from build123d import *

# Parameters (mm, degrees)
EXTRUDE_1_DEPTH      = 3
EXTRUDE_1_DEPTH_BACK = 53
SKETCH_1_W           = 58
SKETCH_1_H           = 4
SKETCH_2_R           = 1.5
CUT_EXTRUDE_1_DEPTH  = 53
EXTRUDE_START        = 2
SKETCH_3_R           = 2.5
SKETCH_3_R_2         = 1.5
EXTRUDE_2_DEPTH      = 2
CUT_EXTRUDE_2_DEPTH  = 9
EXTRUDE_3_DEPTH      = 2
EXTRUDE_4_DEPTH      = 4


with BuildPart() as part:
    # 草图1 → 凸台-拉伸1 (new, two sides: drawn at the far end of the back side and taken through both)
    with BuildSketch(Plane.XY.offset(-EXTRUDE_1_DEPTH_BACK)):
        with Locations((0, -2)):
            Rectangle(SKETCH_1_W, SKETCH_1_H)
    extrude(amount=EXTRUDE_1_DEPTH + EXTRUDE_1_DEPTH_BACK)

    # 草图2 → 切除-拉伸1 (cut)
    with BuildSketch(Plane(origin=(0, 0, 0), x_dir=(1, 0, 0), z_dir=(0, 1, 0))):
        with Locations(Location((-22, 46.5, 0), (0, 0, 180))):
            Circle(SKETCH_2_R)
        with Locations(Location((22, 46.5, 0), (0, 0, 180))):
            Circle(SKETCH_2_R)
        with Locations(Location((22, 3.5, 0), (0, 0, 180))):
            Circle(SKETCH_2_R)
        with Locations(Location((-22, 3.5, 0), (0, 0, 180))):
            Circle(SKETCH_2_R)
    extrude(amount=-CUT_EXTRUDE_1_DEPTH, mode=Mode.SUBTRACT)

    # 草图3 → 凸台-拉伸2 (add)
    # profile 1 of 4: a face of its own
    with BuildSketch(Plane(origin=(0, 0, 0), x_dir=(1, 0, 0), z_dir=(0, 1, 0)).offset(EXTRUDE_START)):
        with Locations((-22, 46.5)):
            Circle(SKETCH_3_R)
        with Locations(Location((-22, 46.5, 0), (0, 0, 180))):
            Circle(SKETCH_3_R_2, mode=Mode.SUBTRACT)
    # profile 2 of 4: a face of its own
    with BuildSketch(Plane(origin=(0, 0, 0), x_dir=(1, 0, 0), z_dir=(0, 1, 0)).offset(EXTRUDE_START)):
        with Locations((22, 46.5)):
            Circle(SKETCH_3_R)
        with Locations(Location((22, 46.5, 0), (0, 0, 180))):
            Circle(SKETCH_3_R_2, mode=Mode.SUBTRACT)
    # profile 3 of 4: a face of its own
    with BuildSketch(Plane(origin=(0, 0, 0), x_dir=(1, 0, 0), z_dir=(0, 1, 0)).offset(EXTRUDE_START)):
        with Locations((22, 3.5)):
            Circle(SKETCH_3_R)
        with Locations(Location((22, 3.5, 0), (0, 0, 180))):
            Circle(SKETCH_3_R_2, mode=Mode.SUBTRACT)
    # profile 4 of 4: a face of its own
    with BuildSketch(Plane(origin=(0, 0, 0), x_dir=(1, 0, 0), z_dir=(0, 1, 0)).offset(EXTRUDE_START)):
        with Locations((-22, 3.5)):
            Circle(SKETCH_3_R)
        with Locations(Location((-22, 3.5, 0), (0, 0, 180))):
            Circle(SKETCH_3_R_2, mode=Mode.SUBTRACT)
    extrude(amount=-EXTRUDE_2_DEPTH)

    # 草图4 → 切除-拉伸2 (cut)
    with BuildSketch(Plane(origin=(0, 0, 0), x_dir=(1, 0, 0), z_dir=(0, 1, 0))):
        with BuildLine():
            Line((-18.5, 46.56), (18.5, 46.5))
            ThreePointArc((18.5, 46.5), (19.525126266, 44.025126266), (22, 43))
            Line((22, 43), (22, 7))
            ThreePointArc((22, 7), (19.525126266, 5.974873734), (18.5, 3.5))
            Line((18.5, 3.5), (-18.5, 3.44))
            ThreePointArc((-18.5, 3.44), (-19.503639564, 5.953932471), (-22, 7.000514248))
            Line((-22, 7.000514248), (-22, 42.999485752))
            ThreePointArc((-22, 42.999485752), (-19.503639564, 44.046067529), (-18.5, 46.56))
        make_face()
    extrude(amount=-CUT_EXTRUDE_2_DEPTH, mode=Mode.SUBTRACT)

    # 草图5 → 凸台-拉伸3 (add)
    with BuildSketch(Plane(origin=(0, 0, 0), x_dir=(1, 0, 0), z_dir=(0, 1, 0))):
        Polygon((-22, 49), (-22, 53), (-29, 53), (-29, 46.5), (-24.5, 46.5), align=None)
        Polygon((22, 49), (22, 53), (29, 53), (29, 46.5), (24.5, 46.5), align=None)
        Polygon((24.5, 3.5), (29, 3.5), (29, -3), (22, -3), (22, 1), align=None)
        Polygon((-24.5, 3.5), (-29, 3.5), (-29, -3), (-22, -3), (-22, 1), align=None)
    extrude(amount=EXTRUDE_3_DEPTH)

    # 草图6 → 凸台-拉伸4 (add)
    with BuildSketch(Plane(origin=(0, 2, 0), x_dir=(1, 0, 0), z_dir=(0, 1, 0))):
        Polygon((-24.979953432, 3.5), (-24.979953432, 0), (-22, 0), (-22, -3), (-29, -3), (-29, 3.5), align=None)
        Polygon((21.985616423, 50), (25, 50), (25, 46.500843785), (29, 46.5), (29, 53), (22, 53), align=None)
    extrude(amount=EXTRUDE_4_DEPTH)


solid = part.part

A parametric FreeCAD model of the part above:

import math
import FreeCAD as App
import Part
import Sketcher

doc = App.newDocument("Part")
params = doc.addObject("Spreadsheet::Sheet", "Params")
for row, (alias, value) in enumerate([
    ("sketch1_width", "58 mm"),
    ("sketch1_height", "4 mm"),
    ("pad1_length", "3 mm"),
    ("pad1_length2", "53 mm"),
    ("sketch2_diameter", "3 mm"),
    ("pocket1_length", "53 mm"),
    ("sketch3_diameter", "5 mm"),
    ("sketch3_diameter2", "3 mm"),
    ("pad2_length", "2 mm"),
    ("sketch4_radius", "3.5 mm"),
    ("sketch4_height", "36 mm"),
    ("pocket2_length", "9 mm"),
    ("sketch5_width", "7 mm"),
    ("sketch5_height", "4 mm"),
    ("sketch5_width2", "4.5 mm"),
    ("pad3_length", "2 mm"),
    ("sketch6_width", "7 mm"),
    ("sketch6_height", "3 mm"),
    ("sketch6_length", "4 mm"),
    ("sketch6_height2", "3.5 mm"),
    ("pad4_length", "4 mm"),
], start=1):
    params.set(f"A{row}", alias)
    params.set(f"B{row}", "=" + value)
    params.setAlias(f"B{row}", alias)

body = doc.addObject("PartDesign::Body", "Body")

# Sketch on XY plane
sketch1 = doc.addObject("Sketcher::SketchObject", "Sketch")
body.addObject(sketch1)
sketch1.AttachmentSupport = (doc.XY_Plane, [""])
sketch1.MapMode = "FlatFace"
sketch1.addGeometry([
    Part.LineSegment(App.Vector(-29, 0, 0), App.Vector(-29, -4, 0)),
    Part.LineSegment(App.Vector(-29, -4, 0), App.Vector(29, -4, 0)),
    Part.LineSegment(App.Vector(29, -4, 0), App.Vector(29, 0, 0)),
    Part.LineSegment(App.Vector(29, 0, 0), App.Vector(-29, 0, 0)),
], False)
sketch1.addConstraint([
    Sketcher.Constraint("Coincident", 0, 2, 1, 1),
    Sketcher.Constraint("Coincident", 1, 2, 2, 1),
    Sketcher.Constraint("Coincident", 2, 2, 3, 1),
    Sketcher.Constraint("Coincident", 3, 2, 0, 1),
    Sketcher.Constraint("Vertical", 0),
    Sketcher.Constraint("Horizontal", 1),
    Sketcher.Constraint("Vertical", 2),
    Sketcher.Constraint("Horizontal", 3),
    Sketcher.Constraint("Symmetric", 2, 2, 3, 2, -1, 1),
    Sketcher.Constraint("DistanceX", 1, 1, 1, 2, 58.0),
    Sketcher.Constraint("DistanceY", 0, 2, 0, 1, 4.0),
])
sketch1.setExpression("Constraints[9]", "Params.sketch1_width")
sketch1.setExpression("Constraints[10]", "Params.sketch1_height")
pad1 = doc.addObject("PartDesign::Pad", "Pad")
body.addObject(pad1)
pad1.Profile = sketch1
pad1.Type = "TwoLengths"
pad1.setExpression("Length", "Params.pad1_length")
pad1.setExpression("Length2", "Params.pad1_length2")

# Sketch on XZ plane
sketch2 = doc.addObject("Sketcher::SketchObject", "Sketch001")
body.addObject(sketch2)
sketch2.AttachmentSupport = (doc.XZ_Plane, [""])
sketch2.MapMode = "FlatFace"
sketch2.addGeometry([
    Part.Circle(App.Vector(-22, -46.5, 0), App.Vector(0, 0, 1), 1.5),
    Part.Circle(App.Vector(22, -46.5, 0), App.Vector(0, 0, 1), 1.5),
    Part.Circle(App.Vector(22, -3.5, 0), App.Vector(0, 0, 1), 1.5),
    Part.Circle(App.Vector(-22, -3.5, 0), App.Vector(0, 0, 1), 1.5),
], False)
sketch2.addConstraint([
    Sketcher.Constraint("Equal", 0, 1),
    Sketcher.Constraint("Equal", 1, 2),
    Sketcher.Constraint("Equal", 2, 3),
    Sketcher.Constraint("Symmetric", 0, 3, 1, 3, -2),
    Sketcher.Constraint("Symmetric", 2, 3, 3, 3, -2),
    Sketcher.Constraint("Vertical", 1, 3, 2, 3),
    Sketcher.Constraint("Diameter", 0, 3.0),
    Sketcher.Constraint("DistanceX", 0, 3, -1, 1, 22.0),
    Sketcher.Constraint("DistanceY", 1, 3, 2, 3, 43.0),
    Sketcher.Constraint("DistanceY", 0, 3, -1, 1, 46.5),
])
sketch2.setExpression("Constraints[6]", "Params.sketch2_diameter")
pocket1 = doc.addObject("PartDesign::Pocket", "Pocket")
body.addObject(pocket1)
pocket1.Profile = sketch2
pocket1.setExpression("Length", "Params.pocket1_length")
pocket1.Reversed = True

# Sketch on XZ plane
sketch3 = doc.addObject("Sketcher::SketchObject", "Sketch002")
body.addObject(sketch3)
sketch3.AttachmentSupport = (doc.XZ_Plane, [""])
sketch3.MapMode = "FlatFace"
sketch3.AttachmentOffset = App.Placement(App.Vector(0, 0, -2), App.Rotation())
sketch3.addGeometry([
    Part.Circle(App.Vector(-22, -46.5, 0), App.Vector(0, 0, 1), 2.5),  # 0
    Part.Circle(App.Vector(-22, -46.5, 0), App.Vector(0, 0, 1), 1.5),  # 1
    Part.Circle(App.Vector(22, -46.5, 0), App.Vector(0, 0, 1), 2.5),  # 2
    Part.Circle(App.Vector(22, -46.5, 0), App.Vector(0, 0, 1), 1.5),  # 3
    Part.Circle(App.Vector(22, -3.5, 0), App.Vector(0, 0, 1), 2.5),  # 4
    Part.Circle(App.Vector(22, -3.5, 0), App.Vector(0, 0, 1), 1.5),  # 5
    Part.Circle(App.Vector(-22, -3.5, 0), App.Vector(0, 0, 1), 2.5),  # 6
    Part.Circle(App.Vector(-22, -3.5, 0), App.Vector(0, 0, 1), 1.5),  # 7
], False)
sketch3.addConstraint([
    Sketcher.Constraint("Coincident", 1, 3, 0, 3),
    Sketcher.Constraint("Coincident", 3, 3, 2, 3),
    Sketcher.Constraint("Coincident", 5, 3, 4, 3),
    Sketcher.Constraint("Coincident", 7, 3, 6, 3),
    Sketcher.Constraint("Equal", 0, 2),
    Sketcher.Constraint("Equal", 1, 3),
    Sketcher.Constraint("Equal", 2, 4),
    Sketcher.Constraint("Equal", 3, 5),
    Sketcher.Constraint("Equal", 4, 6),
    Sketcher.Constraint("Equal", 5, 7),
    Sketcher.Constraint("Symmetric", 0, 3, 2, 3, -2),
    Sketcher.Constraint("Symmetric", 4, 3, 6, 3, -2),
    Sketcher.Constraint("Vertical", 3, 3, 4, 3),
    Sketcher.Constraint("Diameter", 0, 5.0),
    Sketcher.Constraint("Diameter", 1, 3.0),
    Sketcher.Constraint("DistanceX", 0, 3, -1, 1, 22.0),
    Sketcher.Constraint("DistanceY", 2, 3, 4, 3, 43.0),
    Sketcher.Constraint("DistanceY", 0, 3, -1, 1, 46.5),
])
sketch3.setExpression("Constraints[13]", "Params.sketch3_diameter")
sketch3.setExpression("Constraints[14]", "Params.sketch3_diameter2")
pad2 = doc.addObject("PartDesign::Pad", "Pad001")
body.addObject(pad2)
pad2.Profile = sketch3
pad2.setExpression("Length", "Params.pad2_length")

# Sketch on XZ plane
sketch4 = doc.addObject("Sketcher::SketchObject", "Sketch003")
body.addObject(sketch4)
sketch4.AttachmentSupport = (doc.XZ_Plane, [""])
sketch4.MapMode = "FlatFace"
sketch4.addGeometry([
    Part.LineSegment(App.Vector(18.5, -46.5, 0), App.Vector(-18.5, -46.6, 0)),  # 0
    Part.ArcOfCircle(Part.Circle(App.Vector(-22, -46.5, 0), App.Vector(0, 0, 1), 3.5), math.radians(-1), math.radians(90)),  # 1
    Part.LineSegment(App.Vector(-22, -43, 0), App.Vector(-22, -7, 0)),  # 2
    Part.ArcOfCircle(Part.Circle(App.Vector(-22, -3.5, 0), App.Vector(0, 0, 1), 3.5), math.radians(-90), math.radians(1)),  # 3
    Part.LineSegment(App.Vector(-18.5, -3.4, 0), App.Vector(18.5, -3.5, 0)),  # 4
    Part.ArcOfCircle(Part.Circle(App.Vector(22, -3.5, 0), App.Vector(0, 0, 1), 3.5), math.radians(-180), math.radians(-90)),  # 5
    Part.LineSegment(App.Vector(22, -7, 0), App.Vector(22, -43, 0)),  # 6
    Part.ArcOfCircle(Part.Circle(App.Vector(22, -46.5, 0), App.Vector(0, 0, 1), 3.5), math.radians(90), math.radians(180)),  # 7
], False)
sketch4.addConstraint([
    Sketcher.Constraint("Coincident", 0, 2, 1, 1),
    Sketcher.Constraint("Coincident", 1, 2, 2, 1),
    Sketcher.Constraint("Coincident", 2, 2, 3, 1),
    Sketcher.Constraint("Coincident", 3, 2, 4, 1),
    Sketcher.Constraint("Coincident", 4, 2, 5, 1),
    Sketcher.Constraint("Coincident", 5, 2, 6, 1),
    Sketcher.Constraint("Coincident", 6, 2, 7, 1),
    Sketcher.Constraint("Coincident", 7, 2, 0, 1),
    Sketcher.Constraint("Vertical", 2),
    Sketcher.Constraint("Vertical", 6),
    Sketcher.Constraint("Equal", 1, 3),
    Sketcher.Constraint("Equal", 5, 7),
    Sketcher.Constraint("Symmetric", 3, 3, 5, 3, -2),
    Sketcher.Constraint("Symmetric", 1, 3, 7, 3, -2),
    Sketcher.Constraint("Horizontal", 5, 3, 4, 2),
    Sketcher.Constraint("Horizontal", 1, 3, 7, 2),
    Sketcher.Constraint("Vertical", 1, 3, 3, 3),
    Sketcher.Constraint("Vertical", 3, 3, 1, 2),
    Sketcher.Constraint("Vertical", 0, 2, 3, 2),
    Sketcher.Constraint("Vertical", 7, 3, 5, 2),
    Sketcher.Constraint("Radius", 5, 3.5),
    Sketcher.Constraint("DistanceY", 6, 2, 6, 1, 36.0),
    Sketcher.Constraint("DistanceX", 1, 3, -1, 1, 22.0),
    Sketcher.Constraint("DistanceY", 5, 2, -1, 1, 7.0),
    Sketcher.Constraint("DistanceX", 3, 2, 4, 2, 37.0),
    Sketcher.Constraint("DistanceY", 0, 2, -1, 1, 46.56),
])
sketch4.setExpression("Constraints[20]", "Params.sketch4_radius")
sketch4.setExpression("Constraints[21]", "Params.sketch4_height")
pocket2 = doc.addObject("PartDesign::Pocket", "Pocket001")
body.addObject(pocket2)
pocket2.Profile = sketch4
pocket2.setExpression("Length", "Params.pocket2_length")
pocket2.Reversed = True

# Sketch on XZ plane
sketch5 = doc.addObject("Sketcher::SketchObject", "Sketch004")
body.addObject(sketch5)
sketch5.AttachmentSupport = (doc.XZ_Plane, [""])
sketch5.MapMode = "FlatFace"
sketch5.addGeometry([
    Part.LineSegment(App.Vector(-22, -49, 0), App.Vector(-22, -53, 0)),  # 0
    Part.LineSegment(App.Vector(-22, -53, 0), App.Vector(-29, -53, 0)),  # 1
    Part.LineSegment(App.Vector(-29, -53, 0), App.Vector(-29, -46.5, 0)),  # 2
    Part.LineSegment(App.Vector(-29, -46.5, 0), App.Vector(-24.5, -46.5, 0)),  # 3
    Part.LineSegment(App.Vector(-24.5, -46.5, 0), App.Vector(-22, -49, 0)),  # 4
    Part.LineSegment(App.Vector(22, -53, 0), App.Vector(22, -49, 0)),  # 5
    Part.LineSegment(App.Vector(22, -49, 0), App.Vector(24.5, -46.5, 0)),  # 6
    Part.LineSegment(App.Vector(24.5, -46.5, 0), App.Vector(29, -46.5, 0)),  # 7
    Part.LineSegment(App.Vector(29, -46.5, 0), App.Vector(29, -53, 0)),  # 8
    Part.LineSegment(App.Vector(29, -53, 0), App.Vector(22, -53, 0)),  # 9
    Part.LineSegment(App.Vector(29, -3.5, 0), App.Vector(24.5, -3.5, 0)),  # 10
    Part.LineSegment(App.Vector(24.5, -3.5, 0), App.Vector(22, -1, 0)),  # 11
    Part.LineSegment(App.Vector(22, -1, 0), App.Vector(22, 3, 0)),  # 12
    Part.LineSegment(App.Vector(22, 3, 0), App.Vector(29, 3, 0)),  # 13
    Part.LineSegment(App.Vector(29, 3, 0), App.Vector(29, -3.5, 0)),  # 14
    Part.LineSegment(App.Vector(-24.5, -3.5, 0), App.Vector(-29, -3.5, 0)),  # 15
    Part.LineSegment(App.Vector(-29, -3.5, 0), App.Vector(-29, 3, 0)),  # 16
    Part.LineSegment(App.Vector(-29, 3, 0), App.Vector(-22, 3, 0)),  # 17
    Part.LineSegment(App.Vector(-22, 3, 0), App.Vector(-22, -1, 0)),  # 18
    Part.LineSegment(App.Vector(-22, -1, 0), App.Vector(-24.5, -3.5, 0)),  # 19
], False)
sketch5.addConstraint([
    Sketcher.Constraint("Coincident", 0, 2, 1, 1),
    Sketcher.Constraint("Coincident", 1, 2, 2, 1),
    Sketcher.Constraint("Coincident", 2, 2, 3, 1),
    Sketcher.Constraint("Coincident", 3, 2, 4, 1),
    Sketcher.Constraint("Coincident", 4, 2, 0, 1),
    Sketcher.Constraint("Coincident", 5, 2, 6, 1),
    Sketcher.Constraint("Coincident", 6, 2, 7, 1),
    Sketcher.Constraint("Coincident", 7, 2, 8, 1),
    Sketcher.Constraint("Coincident", 8, 2, 9, 1),
    Sketcher.Constraint("Coincident", 9, 2, 5, 1),
    Sketcher.Constraint("Coincident", 10, 2, 11, 1),
    Sketcher.Constraint("Coincident", 11, 2, 12, 1),
    Sketcher.Constraint("Coincident", 12, 2, 13, 1),
    Sketcher.Constraint("Coincident", 13, 2, 14, 1),
    Sketcher.Constraint("Coincident", 14, 2, 10, 1),
    Sketcher.Constraint("Coincident", 15, 2, 16, 1),
    Sketcher.Constraint("Coincident", 16, 2, 17, 1),
    Sketcher.Constraint("Coincident", 17, 2, 18, 1),
    Sketcher.Constraint("Coincident", 18, 2, 19, 1),
    Sketcher.Constraint("Coincident", 19, 2, 15, 1),
    Sketcher.Constraint("Vertical", 0),
    Sketcher.Constraint("Horizontal", 1),
    Sketcher.Constraint("Vertical", 2),
    Sketcher.Constraint("Horizontal", 3),
    Sketcher.Constraint("Vertical", 5),
    Sketcher.Constraint("Horizontal", 7),
    Sketcher.Constraint("Vertical", 8),
    Sketcher.Constraint("Horizontal", 9),
    Sketcher.Constraint("Horizontal", 10),
    Sketcher.Constraint("Vertical", 12),
    Sketcher.Constraint("Horizontal", 13),
    Sketcher.Constraint("Vertical", 14),
    Sketcher.Constraint("Horizontal", 15),
    Sketcher.Constraint("Vertical", 16),
    Sketcher.Constraint("Horizontal", 17),
    Sketcher.Constraint("Vertical", 18),
    Sketcher.Constraint("Symmetric", 4, 2, 5, 2, -2),
    Sketcher.Constraint("Symmetric", 3, 2, 6, 2, -2),
    Sketcher.Constraint("Symmetric", 1, 2, 8, 2, -2),
    Sketcher.Constraint("Symmetric", 14, 2, 15, 2, -2),
    Sketcher.Constraint("Symmetric", 12, 2, 17, 2, -2),
    Sketcher.Constraint("Perpendicular", 4, 6),
    Sketcher.Constraint("Perpendicular", 6, 11),
    Sketcher.Constraint("Perpendicular", 11, 19),
    Sketcher.Constraint("Horizontal", 11, 2, 18, 2),
    Sketcher.Constraint("Vertical", 6, 2, 10, 2),
    Sketcher.Constraint("Vertical", 9, 2, 11, 2),
    Sketcher.Constraint("Vertical", 8, 2, 13, 2),
    Sketcher.Constraint("Equal", 5, 12),
    Sketcher.Constraint("DistanceX", 1, 2, 1, 1, 7.0),
    Sketcher.Constraint("DistanceY", 0, 2, 0, 1, 4.0),
    Sketcher.Constraint("DistanceX", 3, 1, 3, 2, 4.5),
    Sketcher.Constraint("DistanceX", 0, 2, -1, 1, 22.0),
    Sketcher.Constraint("DistanceY", 0, 2, -1, 1, 53.0),
    Sketcher.Constraint("DistanceY", 11, 2, -1, 1, 1.0),
])
sketch5.setExpression("Constraints[49]", "Params.sketch5_width")
sketch5.setExpression("Constraints[50]", "Params.sketch5_height")
sketch5.setExpression("Constraints[51]", "Params.sketch5_width2")
pad3 = doc.addObject("PartDesign::Pad", "Pad002")
body.addObject(pad3)
pad3.Profile = sketch5
pad3.setExpression("Length", "Params.pad3_length")
pad3.Reversed = True

# Sketch on XZ plane
sketch6 = doc.addObject("Sketcher::SketchObject", "Sketch005")
body.addObject(sketch6)
sketch6.AttachmentSupport = (doc.XZ_Plane, [""])
sketch6.MapMode = "FlatFace"
sketch6.AttachmentOffset = App.Placement(App.Vector(0, 0, -2), App.Rotation())
sketch6.addGeometry([
    Part.LineSegment(App.Vector(-25, 0, 0), App.Vector(-25, -3.5, 0)),  # 0
    Part.LineSegment(App.Vector(-25, -3.5, 0), App.Vector(-29, -3.5, 0)),  # 1
    Part.LineSegment(App.Vector(-29, -3.5, 0), App.Vector(-29, 3, 0)),  # 2
    Part.LineSegment(App.Vector(-29, 3, 0), App.Vector(-22, 3, 0)),  # 3
    Part.LineSegment(App.Vector(-22, 3, 0), App.Vector(-22, 0, 0)),  # 4
    Part.LineSegment(App.Vector(-22, 0, 0), App.Vector(-25, 0, 0)),  # 5
    Part.LineSegment(App.Vector(22, -50, 0), App.Vector(25, -50, 0)),  # 6
    Part.LineSegment(App.Vector(25, -50, 0), App.Vector(25, -46.5, 0)),  # 7
    Part.LineSegment(App.Vector(25, -46.5, 0), App.Vector(29, -46.5, 0)),  # 8
    Part.LineSegment(App.Vector(29, -46.5, 0), App.Vector(29, -53, 0)),  # 9
    Part.LineSegment(App.Vector(29, -53, 0), App.Vector(22, -53, 0)),  # 10
    Part.LineSegment(App.Vector(22, -53, 0), App.Vector(22, -50, 0)),  # 11
], False)
sketch6.addConstraint([
    Sketcher.Constraint("Coincident", 0, 2, 1, 1),
    Sketcher.Constraint("Coincident", 1, 2, 2, 1),
    Sketcher.Constraint("Coincident", 2, 2, 3, 1),
    Sketcher.Constraint("Coincident", 3, 2, 4, 1),
    Sketcher.Constraint("Coincident", 4, 2, 5, 1),
    Sketcher.Constraint("Coincident", 5, 2, 0, 1),
    Sketcher.Constraint("Coincident", 6, 2, 7, 1),
    Sketcher.Constraint("Coincident", 7, 2, 8, 1),
    Sketcher.Constraint("Coincident", 8, 2, 9, 1),
    Sketcher.Constraint("Coincident", 9, 2, 10, 1),
    Sketcher.Constraint("Coincident", 10, 2, 11, 1),
    Sketcher.Constraint("Coincident", 11, 2, 6, 1),
    Sketcher.Constraint("Vertical", 0),
    Sketcher.Constraint("Horizontal", 1),
    Sketcher.Constraint("Vertical", 2),
    Sketcher.Constraint("Horizontal", 3),
    Sketcher.Constraint("Vertical", 4),
    Sketcher.Constraint("Horizontal", 5),
    Sketcher.Constraint("Horizontal", 6),
    Sketcher.Constraint("Vertical", 7),
    Sketcher.Constraint("Vertical", 9),
    Sketcher.Constraint("Horizontal", 10),
    Sketcher.Constraint("PointOnObject", 4, 2, -1),
    Sketcher.Constraint("Equal", 3, 10),
    Sketcher.Constraint("Equal", 2, 9),
    Sketcher.Constraint("DistanceX", 3, 1, 3, 2, 7.0),
    Sketcher.Constraint("DistanceY", 4, 2, 4, 1, 3.0),
    Sketcher.Constraint("Distance", 8, 4.0),
    Sketcher.Constraint("DistanceY", 0, 2, 0, 1, 3.5),
    Sketcher.Constraint("DistanceX", 1, 2, -1, 1, 29.0),
    Sketcher.Constraint("DistanceX", -1, 1, 6, 2, 25.0),
    Sketcher.Constraint("DistanceY", 6, 2, -1, 1, 50.0),
    Sketcher.Constraint("DistanceY", 9, 2, -1, 1, 53.0),
    Sketcher.Constraint("DistanceX", 1, 2, 1, 1, 4.020047),
    Sketcher.Constraint("DistanceX", 6, 1, 6, 2, 3.014384),
    Sketcher.Constraint("DistanceY", 7, 1, 7, 2, 3.499156),
])
sketch6.setExpression("Constraints[25]", "Params.sketch6_width")
sketch6.setExpression("Constraints[26]", "Params.sketch6_height")
sketch6.setExpression("Constraints[27]", "Params.sketch6_length")
sketch6.setExpression("Constraints[28]", "Params.sketch6_height2")
pad4 = doc.addObject("PartDesign::Pad", "Pad003")
body.addObject(pad4)
pad4.Profile = sketch6
pad4.setExpression("Length", "Params.pad4_length")
pad4.Reversed = True

doc.recompute()
